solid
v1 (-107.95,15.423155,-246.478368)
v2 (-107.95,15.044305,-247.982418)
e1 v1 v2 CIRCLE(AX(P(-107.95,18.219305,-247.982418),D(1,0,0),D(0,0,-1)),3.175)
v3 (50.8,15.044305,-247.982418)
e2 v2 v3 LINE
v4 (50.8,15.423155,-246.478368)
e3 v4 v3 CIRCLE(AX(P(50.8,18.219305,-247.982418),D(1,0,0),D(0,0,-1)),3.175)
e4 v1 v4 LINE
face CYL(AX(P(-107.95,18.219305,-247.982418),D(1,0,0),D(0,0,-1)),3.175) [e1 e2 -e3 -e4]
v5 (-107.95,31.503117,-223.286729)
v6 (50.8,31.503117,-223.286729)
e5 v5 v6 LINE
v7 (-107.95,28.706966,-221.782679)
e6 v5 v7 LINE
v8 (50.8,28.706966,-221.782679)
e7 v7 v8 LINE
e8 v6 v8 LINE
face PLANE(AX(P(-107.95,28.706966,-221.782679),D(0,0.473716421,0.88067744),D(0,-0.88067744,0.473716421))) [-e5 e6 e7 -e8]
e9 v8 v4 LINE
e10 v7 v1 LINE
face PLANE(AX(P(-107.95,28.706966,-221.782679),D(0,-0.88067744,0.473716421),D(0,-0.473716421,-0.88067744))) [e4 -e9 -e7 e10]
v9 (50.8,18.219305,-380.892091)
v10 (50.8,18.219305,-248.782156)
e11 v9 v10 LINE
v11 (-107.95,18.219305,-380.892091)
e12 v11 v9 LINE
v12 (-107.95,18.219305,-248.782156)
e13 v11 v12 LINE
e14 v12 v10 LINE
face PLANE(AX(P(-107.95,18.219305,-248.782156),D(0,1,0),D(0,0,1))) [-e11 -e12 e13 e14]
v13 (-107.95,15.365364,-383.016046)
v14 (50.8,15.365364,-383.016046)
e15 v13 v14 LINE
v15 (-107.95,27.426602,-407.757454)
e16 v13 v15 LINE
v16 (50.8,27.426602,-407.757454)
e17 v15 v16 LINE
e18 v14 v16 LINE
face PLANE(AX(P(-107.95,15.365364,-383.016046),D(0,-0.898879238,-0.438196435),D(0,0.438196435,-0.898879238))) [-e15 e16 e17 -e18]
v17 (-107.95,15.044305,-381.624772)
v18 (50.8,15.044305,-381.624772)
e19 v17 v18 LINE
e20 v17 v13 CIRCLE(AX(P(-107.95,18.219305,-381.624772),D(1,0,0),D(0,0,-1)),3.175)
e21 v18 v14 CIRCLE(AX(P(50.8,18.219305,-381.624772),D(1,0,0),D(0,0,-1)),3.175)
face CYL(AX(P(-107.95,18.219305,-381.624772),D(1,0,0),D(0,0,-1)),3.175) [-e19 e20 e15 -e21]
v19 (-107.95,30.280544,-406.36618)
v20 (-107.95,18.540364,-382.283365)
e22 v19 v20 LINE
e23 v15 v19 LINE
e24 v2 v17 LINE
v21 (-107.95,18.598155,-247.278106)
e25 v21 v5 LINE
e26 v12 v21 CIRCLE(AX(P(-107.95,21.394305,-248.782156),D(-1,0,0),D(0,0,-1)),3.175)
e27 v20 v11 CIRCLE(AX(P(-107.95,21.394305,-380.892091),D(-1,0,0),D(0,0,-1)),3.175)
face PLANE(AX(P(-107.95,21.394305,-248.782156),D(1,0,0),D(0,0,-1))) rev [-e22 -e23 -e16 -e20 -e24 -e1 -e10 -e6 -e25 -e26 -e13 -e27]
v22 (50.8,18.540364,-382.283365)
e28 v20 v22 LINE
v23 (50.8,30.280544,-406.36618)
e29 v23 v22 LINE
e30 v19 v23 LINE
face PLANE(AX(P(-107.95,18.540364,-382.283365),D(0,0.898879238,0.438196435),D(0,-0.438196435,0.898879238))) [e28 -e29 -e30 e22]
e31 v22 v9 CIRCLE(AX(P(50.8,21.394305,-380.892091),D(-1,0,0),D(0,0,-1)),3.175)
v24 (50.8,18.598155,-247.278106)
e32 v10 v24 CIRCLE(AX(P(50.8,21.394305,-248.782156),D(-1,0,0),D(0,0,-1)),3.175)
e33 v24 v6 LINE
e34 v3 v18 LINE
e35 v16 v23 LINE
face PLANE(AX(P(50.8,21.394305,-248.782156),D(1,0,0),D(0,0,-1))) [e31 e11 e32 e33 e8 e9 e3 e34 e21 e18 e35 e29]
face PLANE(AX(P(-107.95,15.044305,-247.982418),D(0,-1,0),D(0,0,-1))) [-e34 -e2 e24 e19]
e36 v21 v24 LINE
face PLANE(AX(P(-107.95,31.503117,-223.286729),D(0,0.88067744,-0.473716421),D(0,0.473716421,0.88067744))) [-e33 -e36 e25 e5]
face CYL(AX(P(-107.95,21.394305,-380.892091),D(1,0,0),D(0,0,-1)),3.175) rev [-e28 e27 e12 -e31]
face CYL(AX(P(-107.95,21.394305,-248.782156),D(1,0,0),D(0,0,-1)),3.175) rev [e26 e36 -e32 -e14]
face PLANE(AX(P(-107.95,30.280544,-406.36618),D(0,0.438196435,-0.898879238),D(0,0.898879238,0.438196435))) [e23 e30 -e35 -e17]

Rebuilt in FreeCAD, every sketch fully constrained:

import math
import FreeCAD as App
import Part
import Sketcher
from FreeCAD import Vector
Q = App.Units.Quantity

doc = App.newDocument("Part")
body = doc.addObject("PartDesign::Body", "Body")

sketch1 = body.newObject("Sketcher::SketchObject", "Sketch")
sketch1.AttachmentSupport = (doc.getObject("YZ_Plane"), [""])
sketch1.MapMode = "FlatFace"
sketch1.AttachmentOffset = App.Placement(Vector(0, 0, 2 * 25.4), App.Rotation())
sketch1.addGeometry([
    Part.LineSegment(Vector(18.598155, -247.278106, 0), Vector(31.503117, -223.286729, 0)),
    Part.LineSegment(Vector(31.503117, -223.286729, 0), Vector(28.706966, -221.782679, 0)),
    Part.LineSegment(Vector(28.706966, -221.782679, 0), Vector(15.423155, -246.478368, 0)),
    Part.ArcOfCircle(Part.Circle(Vector(18.219305, -247.982418, 0), Vector(0, 0, 1), 3.175), math.radians(151.724191), math.radians(180)),
    Part.LineSegment(Vector(15.044305, -247.982418, 0), Vector(15.044305, -381.624772, 0)),
    Part.ArcOfCircle(Part.Circle(Vector(18.219305, -381.624772, 0), Vector(0, 0, 1), 3.175), math.radians(180), math.radians(205.988863)),
    Part.LineSegment(Vector(15.365364, -383.016046, 0), Vector(27.426602, -407.757454, 0)),
    Part.LineSegment(Vector(27.426602, -407.757454, 0), Vector(30.280544, -406.36618, 0)),
    Part.LineSegment(Vector(30.280544, -406.36618, 0), Vector(18.540364, -382.283365, 0)),
    Part.ArcOfCircle(Part.Circle(Vector(21.394305, -380.892091, 0), Vector(0, 0, 1), 3.175), math.radians(180), math.radians(205.988863)),
    Part.LineSegment(Vector(18.219305, -380.892091, 0), Vector(18.219305, -248.782156, 0)),
    Part.ArcOfCircle(Part.Circle(Vector(21.394305, -248.782156, 0), Vector(0, 0, 1), 3.175), math.radians(151.724191), math.radians(180)),
], False)
sketch1.addConstraint([
    Sketcher.Constraint("Coincident", 0, 2, 1, 1),
    Sketcher.Constraint("Coincident", 1, 2, 2, 1),
    Sketcher.Constraint("Tangent", 2, 2, 3, 1),
    Sketcher.Constraint("Tangent", 3, 2, 4, 1),
    Sketcher.Constraint("Tangent", 4, 2, 5, 1),
    Sketcher.Constraint("Tangent", 5, 2, 6, 1),
    Sketcher.Constraint("Coincident", 6, 2, 7, 1),
    Sketcher.Constraint("Coincident", 7, 2, 8, 1),
    Sketcher.Constraint("Tangent", 8, 2, 9, 2),
    Sketcher.Constraint("Tangent", 9, 1, 10, 1),
    Sketcher.Constraint("Tangent", 10, 2, 11, 2),
    Sketcher.Constraint("Tangent", 11, 1, 0, 1),
    Sketcher.Constraint("Vertical", 4),
    Sketcher.Constraint("Vertical", 10),
    Sketcher.Constraint("Equal", 3, 5),
    Sketcher.Constraint("Equal", 5, 9),
    Sketcher.Constraint("Equal", 9, 11),
    Sketcher.Constraint("Perpendicular", 0, 1),
    Sketcher.Constraint("Perpendicular", 1, 2),
    Sketcher.Constraint("Perpendicular", 6, 7),
    Sketcher.Constraint("Perpendicular", 7, 8),
    Sketcher.Constraint("Vertical", 5, 3, 9, 1),
    Sketcher.Constraint("Equal", 1, 7),
    Sketcher.Constraint("Radius", 3, Q("0.125 in")),
    Sketcher.Constraint("Distance", 1, Q("0.125 in")),
    Sketcher.Constraint("DistanceX", 11, 3, 1, 2, Q("0.2879 in")),
    Sketcher.Constraint("Distance", 6, Q("27.524729 mm")),
    Sketcher.Constraint("DistanceY", 4, 2, 4, 1, Q("133.642355 mm")),
    Sketcher.Constraint("DistanceY", 10, 1, 10, 2, Q("132.109935 mm")),
    Sketcher.Constraint("DistanceY", 9, 3, -1, 1, Q("380.892091 mm")),
    Sketcher.Constraint("DistanceY", 0, 2, -1, 1, Q("223.286729 mm")),
    Sketcher.Constraint("DistanceX", -1, 1, 3, 3, Q("18.219305 mm")),
])
pad1 = body.newObject("PartDesign::Pad", "Pad")
pad1.Profile = sketch1
pad1.Length = Q("6.25 in")
pad1.Reversed = True

doc.recompute()
